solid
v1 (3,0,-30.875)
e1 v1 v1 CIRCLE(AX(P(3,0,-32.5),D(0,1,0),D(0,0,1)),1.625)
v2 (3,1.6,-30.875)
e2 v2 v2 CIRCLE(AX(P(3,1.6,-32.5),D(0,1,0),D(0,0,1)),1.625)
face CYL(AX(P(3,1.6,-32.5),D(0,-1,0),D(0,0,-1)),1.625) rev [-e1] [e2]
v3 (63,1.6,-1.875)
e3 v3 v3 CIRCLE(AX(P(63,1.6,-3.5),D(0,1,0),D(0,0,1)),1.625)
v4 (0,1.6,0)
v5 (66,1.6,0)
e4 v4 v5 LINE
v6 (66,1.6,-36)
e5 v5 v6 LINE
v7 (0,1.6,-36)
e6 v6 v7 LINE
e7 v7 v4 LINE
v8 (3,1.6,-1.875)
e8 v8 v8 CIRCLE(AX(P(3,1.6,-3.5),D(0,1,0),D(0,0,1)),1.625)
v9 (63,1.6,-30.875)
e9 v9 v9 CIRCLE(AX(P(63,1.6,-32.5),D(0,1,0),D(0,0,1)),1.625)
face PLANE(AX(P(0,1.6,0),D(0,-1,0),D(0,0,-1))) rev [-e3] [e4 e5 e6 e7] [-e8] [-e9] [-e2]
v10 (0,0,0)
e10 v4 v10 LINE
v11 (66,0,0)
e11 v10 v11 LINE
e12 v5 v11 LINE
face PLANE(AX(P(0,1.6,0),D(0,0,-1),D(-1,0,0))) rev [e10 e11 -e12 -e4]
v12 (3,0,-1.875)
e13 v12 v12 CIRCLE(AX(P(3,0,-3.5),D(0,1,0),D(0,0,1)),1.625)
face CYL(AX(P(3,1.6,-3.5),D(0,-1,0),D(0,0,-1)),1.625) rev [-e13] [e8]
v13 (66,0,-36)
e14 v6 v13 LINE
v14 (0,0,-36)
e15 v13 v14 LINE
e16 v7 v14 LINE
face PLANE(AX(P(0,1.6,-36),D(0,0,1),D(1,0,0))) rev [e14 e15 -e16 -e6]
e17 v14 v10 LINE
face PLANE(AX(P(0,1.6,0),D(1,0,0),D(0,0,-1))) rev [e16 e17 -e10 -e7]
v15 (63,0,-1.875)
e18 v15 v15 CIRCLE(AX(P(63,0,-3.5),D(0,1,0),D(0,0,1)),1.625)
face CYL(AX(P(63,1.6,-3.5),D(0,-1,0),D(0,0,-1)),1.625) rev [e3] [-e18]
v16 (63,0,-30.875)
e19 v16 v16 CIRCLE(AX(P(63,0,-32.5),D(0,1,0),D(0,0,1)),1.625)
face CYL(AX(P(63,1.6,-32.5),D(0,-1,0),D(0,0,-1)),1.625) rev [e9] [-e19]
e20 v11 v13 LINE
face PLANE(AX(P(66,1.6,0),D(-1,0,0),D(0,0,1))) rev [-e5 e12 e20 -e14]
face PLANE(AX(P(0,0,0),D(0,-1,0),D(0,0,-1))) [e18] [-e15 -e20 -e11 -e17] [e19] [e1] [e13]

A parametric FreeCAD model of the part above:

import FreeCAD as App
import Part
import Sketcher
Q = App.Units.Quantity

doc = App.newDocument("Part")
body = doc.addObject("PartDesign::Body", "Body")

sketch1 = body.newObject("Sketcher::SketchObject", "Sketch")
sketch1.AttachmentSupport = (doc.getObject("XZ_Plane"), [""])
sketch1.MapMode = "FlatFace"
sketch1.addGeometry(Part.LineSegment(App.Vector(0, -36, 0), App.Vector(0, 0, 0)), False)
sketch1.addGeometry(Part.LineSegment(App.Vector(0, 0, 0), App.Vector(66, 0, 0)), False)
sketch1.addGeometry(Part.LineSegment(App.Vector(66, 0, 0), App.Vector(66, -36, 0)), False)
sketch1.addGeometry(Part.LineSegment(App.Vector(66, -36, 0), App.Vector(0, -36, 0)), False)
sketch1.addGeometry(Part.Circle(App.Vector(3, -3.5, 0), App.Vector(0, 0, 1), 1.625), False)
sketch1.addGeometry(Part.Circle(App.Vector(63, -3.5, 0), App.Vector(0, 0, 1), 1.625), False)
sketch1.addGeometry(Part.Circle(App.Vector(3, -32.5, 0), App.Vector(0, 0, 1), 1.625), False)
sketch1.addGeometry(Part.Circle(App.Vector(63, -32.5, 0), App.Vector(0, 0, 1), 1.625), False)
sketch1.addConstraint(Sketcher.Constraint("Coincident", 0, 2, 1, 1))
sketch1.addConstraint(Sketcher.Constraint("Coincident", 1, 2, 2, 1))
sketch1.addConstraint(Sketcher.Constraint("Coincident", 2, 2, 3, 1))
sketch1.addConstraint(Sketcher.Constraint("Coincident", 3, 2, 0, 1))
sketch1.addConstraint(Sketcher.Constraint("Vertical", 0))
sketch1.addConstraint(Sketcher.Constraint("Horizontal", 1))
sketch1.addConstraint(Sketcher.Constraint("Vertical", 2))
sketch1.addConstraint(Sketcher.Constraint("Horizontal", 3))
sketch1.addConstraint(Sketcher.Constraint("Coincident", 0, 2, -1, 1))
sketch1.addConstraint(Sketcher.Constraint("Equal", 4, 5))
sketch1.addConstraint(Sketcher.Constraint("Equal", 5, 6))
sketch1.addConstraint(Sketcher.Constraint("Equal", 6, 7))
sketch1.addConstraint(Sketcher.Constraint("Horizontal", 4, 3, 5, 3))
sketch1.addConstraint(Sketcher.Constraint("Horizontal", 6, 3, 7, 3))
sketch1.addConstraint(Sketcher.Constraint("Vertical", 4, 3, 6, 3))
sketch1.addConstraint(Sketcher.Constraint("Vertical", 5, 3, 7, 3))
sketch1.addConstraint(Sketcher.Constraint("Diameter", 4, Q("3.25 mm")))
sketch1.addConstraint(Sketcher.Constraint("DistanceX", 1, 1, 1, 2, Q("66 mm")))
sketch1.addConstraint(Sketcher.Constraint("DistanceY", 0, 1, 0, 2, Q("36 mm")))
sketch1.addConstraint(Sketcher.Constraint("DistanceX", -1, 1, 4, 3, Q("3 mm")))
sketch1.addConstraint(Sketcher.Constraint("DistanceX", -1, 1, 5, 3, Q("63 mm")))
sketch1.addConstraint(Sketcher.Constraint("DistanceY", 6, 3, 4, 3, Q("29 mm")))
sketch1.addConstraint(Sketcher.Constraint("DistanceY", 4, 3, -1, 1, Q("3.5 mm")))
pad1 = body.newObject("PartDesign::Pad", "Pad")
pad1.Profile = sketch1
pad1.Length = 1.6
pad1.Reversed = True

doc.recompute()
